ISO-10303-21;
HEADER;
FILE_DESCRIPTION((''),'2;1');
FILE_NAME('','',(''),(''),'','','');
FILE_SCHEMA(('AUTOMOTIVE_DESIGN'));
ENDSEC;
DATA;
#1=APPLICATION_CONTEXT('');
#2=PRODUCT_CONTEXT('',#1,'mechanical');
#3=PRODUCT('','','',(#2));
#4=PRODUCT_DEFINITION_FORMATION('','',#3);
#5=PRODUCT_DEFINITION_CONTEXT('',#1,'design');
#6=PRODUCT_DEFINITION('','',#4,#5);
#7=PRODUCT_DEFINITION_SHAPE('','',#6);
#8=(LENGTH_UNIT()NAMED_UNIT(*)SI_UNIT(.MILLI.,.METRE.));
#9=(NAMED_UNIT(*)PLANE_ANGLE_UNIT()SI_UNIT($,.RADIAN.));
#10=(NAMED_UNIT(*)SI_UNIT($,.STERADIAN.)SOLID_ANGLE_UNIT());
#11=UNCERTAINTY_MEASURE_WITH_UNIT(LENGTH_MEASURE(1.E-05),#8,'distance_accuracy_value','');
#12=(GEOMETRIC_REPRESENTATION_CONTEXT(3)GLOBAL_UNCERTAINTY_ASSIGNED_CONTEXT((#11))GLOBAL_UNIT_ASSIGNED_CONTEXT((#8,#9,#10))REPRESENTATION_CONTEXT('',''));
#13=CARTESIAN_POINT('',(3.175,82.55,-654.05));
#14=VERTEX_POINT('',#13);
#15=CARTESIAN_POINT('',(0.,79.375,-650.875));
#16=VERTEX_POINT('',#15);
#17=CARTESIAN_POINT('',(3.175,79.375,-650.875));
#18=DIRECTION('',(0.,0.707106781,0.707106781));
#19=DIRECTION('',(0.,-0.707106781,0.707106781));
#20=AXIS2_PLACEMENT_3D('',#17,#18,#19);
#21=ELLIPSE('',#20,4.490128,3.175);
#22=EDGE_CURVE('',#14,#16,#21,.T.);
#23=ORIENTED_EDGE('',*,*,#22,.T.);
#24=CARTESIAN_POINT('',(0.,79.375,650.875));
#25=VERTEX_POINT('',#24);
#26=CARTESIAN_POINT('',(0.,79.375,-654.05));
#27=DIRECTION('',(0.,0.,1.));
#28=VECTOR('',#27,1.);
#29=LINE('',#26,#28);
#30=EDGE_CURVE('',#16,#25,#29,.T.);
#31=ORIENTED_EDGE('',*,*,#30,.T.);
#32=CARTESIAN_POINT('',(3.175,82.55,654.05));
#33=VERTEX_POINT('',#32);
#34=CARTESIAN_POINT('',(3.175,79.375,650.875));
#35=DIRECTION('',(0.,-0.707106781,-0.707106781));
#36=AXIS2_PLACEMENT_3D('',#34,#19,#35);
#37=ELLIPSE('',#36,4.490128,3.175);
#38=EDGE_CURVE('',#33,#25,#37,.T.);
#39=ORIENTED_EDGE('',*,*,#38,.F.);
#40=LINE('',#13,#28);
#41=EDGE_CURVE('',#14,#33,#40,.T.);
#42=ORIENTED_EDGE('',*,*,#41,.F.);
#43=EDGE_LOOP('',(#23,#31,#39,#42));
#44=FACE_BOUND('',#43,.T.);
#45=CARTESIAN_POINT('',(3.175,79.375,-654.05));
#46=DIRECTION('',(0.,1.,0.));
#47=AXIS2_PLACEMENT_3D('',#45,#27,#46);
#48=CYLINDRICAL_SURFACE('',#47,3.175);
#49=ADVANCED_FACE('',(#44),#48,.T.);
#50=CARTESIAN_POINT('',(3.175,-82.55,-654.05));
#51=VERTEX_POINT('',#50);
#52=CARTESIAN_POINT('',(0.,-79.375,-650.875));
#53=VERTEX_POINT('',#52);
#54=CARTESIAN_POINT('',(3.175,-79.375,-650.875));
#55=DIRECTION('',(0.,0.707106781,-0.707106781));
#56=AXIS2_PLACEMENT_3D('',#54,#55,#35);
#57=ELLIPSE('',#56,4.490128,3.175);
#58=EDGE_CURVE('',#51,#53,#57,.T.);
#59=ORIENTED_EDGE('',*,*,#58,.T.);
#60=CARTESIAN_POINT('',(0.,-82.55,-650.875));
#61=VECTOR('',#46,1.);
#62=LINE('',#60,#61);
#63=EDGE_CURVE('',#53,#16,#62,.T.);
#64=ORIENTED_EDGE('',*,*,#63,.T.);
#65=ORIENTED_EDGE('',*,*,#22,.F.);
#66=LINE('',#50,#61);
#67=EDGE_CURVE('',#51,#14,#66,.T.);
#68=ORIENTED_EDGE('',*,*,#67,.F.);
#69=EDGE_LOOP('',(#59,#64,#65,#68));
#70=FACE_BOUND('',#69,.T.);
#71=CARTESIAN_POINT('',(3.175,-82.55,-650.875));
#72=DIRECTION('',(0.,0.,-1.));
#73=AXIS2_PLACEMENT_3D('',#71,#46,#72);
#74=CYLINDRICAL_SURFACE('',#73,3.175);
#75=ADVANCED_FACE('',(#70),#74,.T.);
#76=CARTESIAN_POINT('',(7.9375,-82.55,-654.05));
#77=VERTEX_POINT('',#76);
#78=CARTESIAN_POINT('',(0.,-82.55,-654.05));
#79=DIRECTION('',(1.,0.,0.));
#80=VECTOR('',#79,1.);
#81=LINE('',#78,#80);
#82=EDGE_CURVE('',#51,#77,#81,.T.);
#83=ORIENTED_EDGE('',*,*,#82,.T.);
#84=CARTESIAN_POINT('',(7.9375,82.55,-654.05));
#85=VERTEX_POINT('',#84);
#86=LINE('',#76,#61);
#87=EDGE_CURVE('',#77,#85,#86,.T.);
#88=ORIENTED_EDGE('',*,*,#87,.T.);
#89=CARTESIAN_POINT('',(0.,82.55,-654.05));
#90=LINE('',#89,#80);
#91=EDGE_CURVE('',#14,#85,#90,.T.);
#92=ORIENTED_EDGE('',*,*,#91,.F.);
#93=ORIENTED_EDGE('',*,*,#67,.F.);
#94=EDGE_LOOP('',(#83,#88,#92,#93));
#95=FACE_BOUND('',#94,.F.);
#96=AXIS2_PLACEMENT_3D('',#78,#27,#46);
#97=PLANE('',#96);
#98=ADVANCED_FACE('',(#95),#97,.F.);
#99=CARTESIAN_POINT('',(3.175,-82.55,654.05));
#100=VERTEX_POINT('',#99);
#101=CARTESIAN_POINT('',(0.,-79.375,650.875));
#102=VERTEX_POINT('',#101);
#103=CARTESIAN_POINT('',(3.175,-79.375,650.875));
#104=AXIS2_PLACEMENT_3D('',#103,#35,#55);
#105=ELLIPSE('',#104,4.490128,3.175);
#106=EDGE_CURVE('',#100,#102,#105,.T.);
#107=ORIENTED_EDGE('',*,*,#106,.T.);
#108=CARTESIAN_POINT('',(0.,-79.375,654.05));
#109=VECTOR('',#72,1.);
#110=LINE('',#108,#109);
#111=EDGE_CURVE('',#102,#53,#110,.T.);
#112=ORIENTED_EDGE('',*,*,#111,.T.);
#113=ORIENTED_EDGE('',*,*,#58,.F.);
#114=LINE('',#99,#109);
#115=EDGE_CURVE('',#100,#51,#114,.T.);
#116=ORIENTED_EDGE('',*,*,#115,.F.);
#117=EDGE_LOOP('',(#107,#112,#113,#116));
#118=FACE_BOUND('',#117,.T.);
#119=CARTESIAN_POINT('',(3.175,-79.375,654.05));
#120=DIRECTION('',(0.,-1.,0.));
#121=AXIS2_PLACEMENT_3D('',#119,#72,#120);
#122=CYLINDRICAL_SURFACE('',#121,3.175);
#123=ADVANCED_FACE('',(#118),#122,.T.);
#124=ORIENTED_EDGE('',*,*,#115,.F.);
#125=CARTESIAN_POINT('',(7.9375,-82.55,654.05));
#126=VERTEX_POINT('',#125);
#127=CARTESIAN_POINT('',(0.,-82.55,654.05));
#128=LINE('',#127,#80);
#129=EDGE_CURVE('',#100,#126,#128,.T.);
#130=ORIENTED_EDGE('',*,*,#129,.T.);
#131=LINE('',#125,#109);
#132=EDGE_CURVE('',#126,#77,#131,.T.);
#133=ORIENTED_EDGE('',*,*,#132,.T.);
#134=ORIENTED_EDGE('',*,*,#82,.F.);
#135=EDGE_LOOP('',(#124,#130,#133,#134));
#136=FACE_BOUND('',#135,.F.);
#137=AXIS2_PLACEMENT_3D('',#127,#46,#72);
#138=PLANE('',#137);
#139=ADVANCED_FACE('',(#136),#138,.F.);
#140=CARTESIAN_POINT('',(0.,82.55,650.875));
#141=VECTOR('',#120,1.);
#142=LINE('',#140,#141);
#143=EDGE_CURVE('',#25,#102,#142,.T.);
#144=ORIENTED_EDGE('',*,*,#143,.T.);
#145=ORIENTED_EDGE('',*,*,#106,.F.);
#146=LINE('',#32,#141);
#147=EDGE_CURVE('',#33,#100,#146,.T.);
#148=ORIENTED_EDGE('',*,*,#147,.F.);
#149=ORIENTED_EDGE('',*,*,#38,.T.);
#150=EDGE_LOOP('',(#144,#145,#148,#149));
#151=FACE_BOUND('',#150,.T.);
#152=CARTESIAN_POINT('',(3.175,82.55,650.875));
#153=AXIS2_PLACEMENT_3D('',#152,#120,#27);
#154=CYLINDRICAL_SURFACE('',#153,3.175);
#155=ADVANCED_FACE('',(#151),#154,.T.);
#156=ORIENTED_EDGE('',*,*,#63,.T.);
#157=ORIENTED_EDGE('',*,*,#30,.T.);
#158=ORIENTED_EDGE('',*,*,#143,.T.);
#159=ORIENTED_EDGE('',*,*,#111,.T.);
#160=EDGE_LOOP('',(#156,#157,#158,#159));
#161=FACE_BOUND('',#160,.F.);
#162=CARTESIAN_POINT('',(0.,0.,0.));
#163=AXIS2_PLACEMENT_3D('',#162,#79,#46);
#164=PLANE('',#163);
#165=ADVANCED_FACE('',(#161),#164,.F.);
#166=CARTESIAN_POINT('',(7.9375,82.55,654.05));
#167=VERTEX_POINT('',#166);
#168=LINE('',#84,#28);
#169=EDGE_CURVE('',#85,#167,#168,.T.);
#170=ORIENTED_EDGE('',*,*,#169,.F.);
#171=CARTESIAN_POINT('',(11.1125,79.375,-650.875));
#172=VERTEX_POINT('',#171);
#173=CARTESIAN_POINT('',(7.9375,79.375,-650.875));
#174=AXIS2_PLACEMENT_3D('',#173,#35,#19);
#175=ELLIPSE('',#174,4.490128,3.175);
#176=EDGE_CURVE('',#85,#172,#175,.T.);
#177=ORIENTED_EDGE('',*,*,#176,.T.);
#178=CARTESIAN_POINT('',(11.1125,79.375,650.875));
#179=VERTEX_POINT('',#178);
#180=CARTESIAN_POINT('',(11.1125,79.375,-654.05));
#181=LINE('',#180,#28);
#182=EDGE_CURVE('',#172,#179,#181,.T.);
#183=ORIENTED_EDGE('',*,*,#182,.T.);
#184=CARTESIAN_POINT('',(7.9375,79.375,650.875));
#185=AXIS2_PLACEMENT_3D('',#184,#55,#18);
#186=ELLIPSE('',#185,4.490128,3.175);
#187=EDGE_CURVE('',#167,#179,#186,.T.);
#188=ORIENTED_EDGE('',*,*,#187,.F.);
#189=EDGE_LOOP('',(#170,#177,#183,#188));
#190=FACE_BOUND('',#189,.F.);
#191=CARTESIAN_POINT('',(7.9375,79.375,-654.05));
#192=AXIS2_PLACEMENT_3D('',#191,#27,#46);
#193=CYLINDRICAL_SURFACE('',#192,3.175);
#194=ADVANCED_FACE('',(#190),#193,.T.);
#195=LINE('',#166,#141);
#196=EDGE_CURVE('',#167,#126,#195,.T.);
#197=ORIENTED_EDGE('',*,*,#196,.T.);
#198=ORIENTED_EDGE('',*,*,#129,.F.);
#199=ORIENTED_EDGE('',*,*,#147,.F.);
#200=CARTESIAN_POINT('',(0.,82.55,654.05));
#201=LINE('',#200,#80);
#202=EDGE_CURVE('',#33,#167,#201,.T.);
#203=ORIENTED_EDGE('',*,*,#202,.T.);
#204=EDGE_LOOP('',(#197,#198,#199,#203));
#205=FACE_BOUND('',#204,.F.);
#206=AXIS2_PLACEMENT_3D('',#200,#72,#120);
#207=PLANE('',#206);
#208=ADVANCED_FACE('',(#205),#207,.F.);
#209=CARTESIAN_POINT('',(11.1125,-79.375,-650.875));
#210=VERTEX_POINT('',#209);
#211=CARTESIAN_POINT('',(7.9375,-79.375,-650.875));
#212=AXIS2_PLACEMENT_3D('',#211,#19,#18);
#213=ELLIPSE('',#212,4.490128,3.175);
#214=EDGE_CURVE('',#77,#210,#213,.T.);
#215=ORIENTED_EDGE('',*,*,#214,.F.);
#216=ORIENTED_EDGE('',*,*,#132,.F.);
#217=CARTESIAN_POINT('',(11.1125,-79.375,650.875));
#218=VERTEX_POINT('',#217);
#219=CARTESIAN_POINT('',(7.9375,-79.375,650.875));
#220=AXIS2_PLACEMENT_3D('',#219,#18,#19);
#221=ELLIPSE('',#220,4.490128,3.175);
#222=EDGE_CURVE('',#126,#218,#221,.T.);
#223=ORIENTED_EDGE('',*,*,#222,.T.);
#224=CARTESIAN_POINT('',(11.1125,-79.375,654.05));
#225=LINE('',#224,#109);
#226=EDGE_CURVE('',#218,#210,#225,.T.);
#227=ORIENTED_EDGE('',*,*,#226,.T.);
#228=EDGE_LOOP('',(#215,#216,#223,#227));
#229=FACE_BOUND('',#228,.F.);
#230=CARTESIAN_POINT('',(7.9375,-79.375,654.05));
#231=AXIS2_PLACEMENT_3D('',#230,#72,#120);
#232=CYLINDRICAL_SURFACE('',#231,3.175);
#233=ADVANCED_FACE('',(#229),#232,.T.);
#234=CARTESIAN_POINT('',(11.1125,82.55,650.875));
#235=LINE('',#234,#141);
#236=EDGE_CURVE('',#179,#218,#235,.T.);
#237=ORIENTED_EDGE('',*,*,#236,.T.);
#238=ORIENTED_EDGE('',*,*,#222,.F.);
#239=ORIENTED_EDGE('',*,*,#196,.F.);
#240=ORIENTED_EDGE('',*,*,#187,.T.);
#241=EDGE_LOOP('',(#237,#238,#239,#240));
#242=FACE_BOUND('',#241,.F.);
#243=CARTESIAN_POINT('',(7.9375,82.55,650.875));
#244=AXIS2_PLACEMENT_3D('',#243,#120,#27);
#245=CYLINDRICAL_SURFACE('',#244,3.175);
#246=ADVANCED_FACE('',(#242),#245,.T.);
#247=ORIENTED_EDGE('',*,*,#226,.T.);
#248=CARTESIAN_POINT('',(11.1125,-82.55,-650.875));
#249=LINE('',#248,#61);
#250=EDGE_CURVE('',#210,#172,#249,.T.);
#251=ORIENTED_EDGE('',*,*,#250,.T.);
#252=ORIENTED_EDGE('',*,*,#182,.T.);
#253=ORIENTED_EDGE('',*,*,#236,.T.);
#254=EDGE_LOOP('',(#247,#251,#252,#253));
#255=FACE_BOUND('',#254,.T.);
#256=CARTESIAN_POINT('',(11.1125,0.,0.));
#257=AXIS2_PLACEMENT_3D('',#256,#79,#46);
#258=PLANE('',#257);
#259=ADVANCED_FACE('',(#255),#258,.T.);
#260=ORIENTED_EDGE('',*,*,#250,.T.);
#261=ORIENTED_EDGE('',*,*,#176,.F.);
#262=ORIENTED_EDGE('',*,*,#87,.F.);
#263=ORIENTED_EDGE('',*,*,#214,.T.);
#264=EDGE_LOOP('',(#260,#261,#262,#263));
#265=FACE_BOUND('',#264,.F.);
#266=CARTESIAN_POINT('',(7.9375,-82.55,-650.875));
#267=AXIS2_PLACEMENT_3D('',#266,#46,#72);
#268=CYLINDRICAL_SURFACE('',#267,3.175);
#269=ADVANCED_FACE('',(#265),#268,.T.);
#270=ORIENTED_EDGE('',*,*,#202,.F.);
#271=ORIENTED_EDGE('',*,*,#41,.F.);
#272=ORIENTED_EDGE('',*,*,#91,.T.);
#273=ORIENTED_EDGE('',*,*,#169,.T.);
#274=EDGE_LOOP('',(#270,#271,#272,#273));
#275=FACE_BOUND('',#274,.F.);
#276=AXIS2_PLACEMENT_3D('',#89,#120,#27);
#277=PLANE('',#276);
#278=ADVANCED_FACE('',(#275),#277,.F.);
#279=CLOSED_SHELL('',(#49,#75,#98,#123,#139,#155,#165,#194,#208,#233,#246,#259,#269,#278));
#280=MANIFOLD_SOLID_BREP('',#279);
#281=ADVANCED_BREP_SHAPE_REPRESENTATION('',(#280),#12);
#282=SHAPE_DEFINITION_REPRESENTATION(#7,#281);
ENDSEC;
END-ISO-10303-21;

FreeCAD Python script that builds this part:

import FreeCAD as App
import Part
import Sketcher
from FreeCAD import Vector
Q = App.Units.Quantity


def edges_at(feature, points):
    """Names of the edges that pass closest to the given points."""
    edges = feature.Shape.Edges
    near = lambda p: min(range(len(edges)), key=lambda i: edges[i].distToShape(Part.Vertex(*p))[0])
    return sorted({f"Edge{near(p) + 1}" for p in points})

doc = App.newDocument("Part")
body = doc.addObject("PartDesign::Body", "Body")

# Sketch on YZ plane
sketch1 = doc.addObject("Sketcher::SketchObject", "Sketch")
body.addObject(sketch1)
sketch1.AttachmentSupport = (doc.YZ_Plane, [""])
sketch1.MapMode = "FlatFace"
sketch1.addGeometry([
    Part.LineSegment(Vector(83, 654, 0), Vector(-83, 654, 0)),
    Part.LineSegment(Vector(-83, 654, 0), Vector(-83, -654, 0)),
    Part.LineSegment(Vector(-83, -654, 0), Vector(83, -654, 0)),
    Part.LineSegment(Vector(83, -654, 0), Vector(83, 654, 0)),
], False)
sketch1.addConstraint([
    Sketcher.Constraint("Coincident", 0, 2, 1, 1),
    Sketcher.Constraint("Coincident", 1, 2, 2, 1),
    Sketcher.Constraint("Coincident", 2, 2, 3, 1),
    Sketcher.Constraint("Coincident", 3, 2, 0, 1),
    Sketcher.Constraint("Horizontal", 0),
    Sketcher.Constraint("Vertical", 1),
    Sketcher.Constraint("Horizontal", 2),
    Sketcher.Constraint("Vertical", 3),
    Sketcher.Constraint("Symmetric", 0, 2, 2, 2, -1, 1),
    Sketcher.Constraint("DistanceX", 0, 2, 0, 1, Q("6.5 in")),
    Sketcher.Constraint("DistanceY", 1, 2, 1, 1, Q("51.5 in")),
])
pad1 = doc.addObject("PartDesign::Pad", "Pad")
body.addObject(pad1)
pad1.Profile = sketch1
pad1.Length = Q("0.4375 in")
doc.recompute()

fillet = doc.addObject("PartDesign::Fillet", "Fillet")
body.addObject(fillet)
fillet.Base = (pad1, edges_at(pad1, [
    (11.113, 82.55, 0),
    (11.113, 0, 654.05),
    (0, -82.55, 0),
    (11.113, 0, -654.05),
    (11.113, -82.55, 0),
    (0, 0, 654.05),
    (0, 82.55, 0),
    (0, 0, -654.05),
]))
fillet.Radius = Q("0.125 in")

doc.recompute()
